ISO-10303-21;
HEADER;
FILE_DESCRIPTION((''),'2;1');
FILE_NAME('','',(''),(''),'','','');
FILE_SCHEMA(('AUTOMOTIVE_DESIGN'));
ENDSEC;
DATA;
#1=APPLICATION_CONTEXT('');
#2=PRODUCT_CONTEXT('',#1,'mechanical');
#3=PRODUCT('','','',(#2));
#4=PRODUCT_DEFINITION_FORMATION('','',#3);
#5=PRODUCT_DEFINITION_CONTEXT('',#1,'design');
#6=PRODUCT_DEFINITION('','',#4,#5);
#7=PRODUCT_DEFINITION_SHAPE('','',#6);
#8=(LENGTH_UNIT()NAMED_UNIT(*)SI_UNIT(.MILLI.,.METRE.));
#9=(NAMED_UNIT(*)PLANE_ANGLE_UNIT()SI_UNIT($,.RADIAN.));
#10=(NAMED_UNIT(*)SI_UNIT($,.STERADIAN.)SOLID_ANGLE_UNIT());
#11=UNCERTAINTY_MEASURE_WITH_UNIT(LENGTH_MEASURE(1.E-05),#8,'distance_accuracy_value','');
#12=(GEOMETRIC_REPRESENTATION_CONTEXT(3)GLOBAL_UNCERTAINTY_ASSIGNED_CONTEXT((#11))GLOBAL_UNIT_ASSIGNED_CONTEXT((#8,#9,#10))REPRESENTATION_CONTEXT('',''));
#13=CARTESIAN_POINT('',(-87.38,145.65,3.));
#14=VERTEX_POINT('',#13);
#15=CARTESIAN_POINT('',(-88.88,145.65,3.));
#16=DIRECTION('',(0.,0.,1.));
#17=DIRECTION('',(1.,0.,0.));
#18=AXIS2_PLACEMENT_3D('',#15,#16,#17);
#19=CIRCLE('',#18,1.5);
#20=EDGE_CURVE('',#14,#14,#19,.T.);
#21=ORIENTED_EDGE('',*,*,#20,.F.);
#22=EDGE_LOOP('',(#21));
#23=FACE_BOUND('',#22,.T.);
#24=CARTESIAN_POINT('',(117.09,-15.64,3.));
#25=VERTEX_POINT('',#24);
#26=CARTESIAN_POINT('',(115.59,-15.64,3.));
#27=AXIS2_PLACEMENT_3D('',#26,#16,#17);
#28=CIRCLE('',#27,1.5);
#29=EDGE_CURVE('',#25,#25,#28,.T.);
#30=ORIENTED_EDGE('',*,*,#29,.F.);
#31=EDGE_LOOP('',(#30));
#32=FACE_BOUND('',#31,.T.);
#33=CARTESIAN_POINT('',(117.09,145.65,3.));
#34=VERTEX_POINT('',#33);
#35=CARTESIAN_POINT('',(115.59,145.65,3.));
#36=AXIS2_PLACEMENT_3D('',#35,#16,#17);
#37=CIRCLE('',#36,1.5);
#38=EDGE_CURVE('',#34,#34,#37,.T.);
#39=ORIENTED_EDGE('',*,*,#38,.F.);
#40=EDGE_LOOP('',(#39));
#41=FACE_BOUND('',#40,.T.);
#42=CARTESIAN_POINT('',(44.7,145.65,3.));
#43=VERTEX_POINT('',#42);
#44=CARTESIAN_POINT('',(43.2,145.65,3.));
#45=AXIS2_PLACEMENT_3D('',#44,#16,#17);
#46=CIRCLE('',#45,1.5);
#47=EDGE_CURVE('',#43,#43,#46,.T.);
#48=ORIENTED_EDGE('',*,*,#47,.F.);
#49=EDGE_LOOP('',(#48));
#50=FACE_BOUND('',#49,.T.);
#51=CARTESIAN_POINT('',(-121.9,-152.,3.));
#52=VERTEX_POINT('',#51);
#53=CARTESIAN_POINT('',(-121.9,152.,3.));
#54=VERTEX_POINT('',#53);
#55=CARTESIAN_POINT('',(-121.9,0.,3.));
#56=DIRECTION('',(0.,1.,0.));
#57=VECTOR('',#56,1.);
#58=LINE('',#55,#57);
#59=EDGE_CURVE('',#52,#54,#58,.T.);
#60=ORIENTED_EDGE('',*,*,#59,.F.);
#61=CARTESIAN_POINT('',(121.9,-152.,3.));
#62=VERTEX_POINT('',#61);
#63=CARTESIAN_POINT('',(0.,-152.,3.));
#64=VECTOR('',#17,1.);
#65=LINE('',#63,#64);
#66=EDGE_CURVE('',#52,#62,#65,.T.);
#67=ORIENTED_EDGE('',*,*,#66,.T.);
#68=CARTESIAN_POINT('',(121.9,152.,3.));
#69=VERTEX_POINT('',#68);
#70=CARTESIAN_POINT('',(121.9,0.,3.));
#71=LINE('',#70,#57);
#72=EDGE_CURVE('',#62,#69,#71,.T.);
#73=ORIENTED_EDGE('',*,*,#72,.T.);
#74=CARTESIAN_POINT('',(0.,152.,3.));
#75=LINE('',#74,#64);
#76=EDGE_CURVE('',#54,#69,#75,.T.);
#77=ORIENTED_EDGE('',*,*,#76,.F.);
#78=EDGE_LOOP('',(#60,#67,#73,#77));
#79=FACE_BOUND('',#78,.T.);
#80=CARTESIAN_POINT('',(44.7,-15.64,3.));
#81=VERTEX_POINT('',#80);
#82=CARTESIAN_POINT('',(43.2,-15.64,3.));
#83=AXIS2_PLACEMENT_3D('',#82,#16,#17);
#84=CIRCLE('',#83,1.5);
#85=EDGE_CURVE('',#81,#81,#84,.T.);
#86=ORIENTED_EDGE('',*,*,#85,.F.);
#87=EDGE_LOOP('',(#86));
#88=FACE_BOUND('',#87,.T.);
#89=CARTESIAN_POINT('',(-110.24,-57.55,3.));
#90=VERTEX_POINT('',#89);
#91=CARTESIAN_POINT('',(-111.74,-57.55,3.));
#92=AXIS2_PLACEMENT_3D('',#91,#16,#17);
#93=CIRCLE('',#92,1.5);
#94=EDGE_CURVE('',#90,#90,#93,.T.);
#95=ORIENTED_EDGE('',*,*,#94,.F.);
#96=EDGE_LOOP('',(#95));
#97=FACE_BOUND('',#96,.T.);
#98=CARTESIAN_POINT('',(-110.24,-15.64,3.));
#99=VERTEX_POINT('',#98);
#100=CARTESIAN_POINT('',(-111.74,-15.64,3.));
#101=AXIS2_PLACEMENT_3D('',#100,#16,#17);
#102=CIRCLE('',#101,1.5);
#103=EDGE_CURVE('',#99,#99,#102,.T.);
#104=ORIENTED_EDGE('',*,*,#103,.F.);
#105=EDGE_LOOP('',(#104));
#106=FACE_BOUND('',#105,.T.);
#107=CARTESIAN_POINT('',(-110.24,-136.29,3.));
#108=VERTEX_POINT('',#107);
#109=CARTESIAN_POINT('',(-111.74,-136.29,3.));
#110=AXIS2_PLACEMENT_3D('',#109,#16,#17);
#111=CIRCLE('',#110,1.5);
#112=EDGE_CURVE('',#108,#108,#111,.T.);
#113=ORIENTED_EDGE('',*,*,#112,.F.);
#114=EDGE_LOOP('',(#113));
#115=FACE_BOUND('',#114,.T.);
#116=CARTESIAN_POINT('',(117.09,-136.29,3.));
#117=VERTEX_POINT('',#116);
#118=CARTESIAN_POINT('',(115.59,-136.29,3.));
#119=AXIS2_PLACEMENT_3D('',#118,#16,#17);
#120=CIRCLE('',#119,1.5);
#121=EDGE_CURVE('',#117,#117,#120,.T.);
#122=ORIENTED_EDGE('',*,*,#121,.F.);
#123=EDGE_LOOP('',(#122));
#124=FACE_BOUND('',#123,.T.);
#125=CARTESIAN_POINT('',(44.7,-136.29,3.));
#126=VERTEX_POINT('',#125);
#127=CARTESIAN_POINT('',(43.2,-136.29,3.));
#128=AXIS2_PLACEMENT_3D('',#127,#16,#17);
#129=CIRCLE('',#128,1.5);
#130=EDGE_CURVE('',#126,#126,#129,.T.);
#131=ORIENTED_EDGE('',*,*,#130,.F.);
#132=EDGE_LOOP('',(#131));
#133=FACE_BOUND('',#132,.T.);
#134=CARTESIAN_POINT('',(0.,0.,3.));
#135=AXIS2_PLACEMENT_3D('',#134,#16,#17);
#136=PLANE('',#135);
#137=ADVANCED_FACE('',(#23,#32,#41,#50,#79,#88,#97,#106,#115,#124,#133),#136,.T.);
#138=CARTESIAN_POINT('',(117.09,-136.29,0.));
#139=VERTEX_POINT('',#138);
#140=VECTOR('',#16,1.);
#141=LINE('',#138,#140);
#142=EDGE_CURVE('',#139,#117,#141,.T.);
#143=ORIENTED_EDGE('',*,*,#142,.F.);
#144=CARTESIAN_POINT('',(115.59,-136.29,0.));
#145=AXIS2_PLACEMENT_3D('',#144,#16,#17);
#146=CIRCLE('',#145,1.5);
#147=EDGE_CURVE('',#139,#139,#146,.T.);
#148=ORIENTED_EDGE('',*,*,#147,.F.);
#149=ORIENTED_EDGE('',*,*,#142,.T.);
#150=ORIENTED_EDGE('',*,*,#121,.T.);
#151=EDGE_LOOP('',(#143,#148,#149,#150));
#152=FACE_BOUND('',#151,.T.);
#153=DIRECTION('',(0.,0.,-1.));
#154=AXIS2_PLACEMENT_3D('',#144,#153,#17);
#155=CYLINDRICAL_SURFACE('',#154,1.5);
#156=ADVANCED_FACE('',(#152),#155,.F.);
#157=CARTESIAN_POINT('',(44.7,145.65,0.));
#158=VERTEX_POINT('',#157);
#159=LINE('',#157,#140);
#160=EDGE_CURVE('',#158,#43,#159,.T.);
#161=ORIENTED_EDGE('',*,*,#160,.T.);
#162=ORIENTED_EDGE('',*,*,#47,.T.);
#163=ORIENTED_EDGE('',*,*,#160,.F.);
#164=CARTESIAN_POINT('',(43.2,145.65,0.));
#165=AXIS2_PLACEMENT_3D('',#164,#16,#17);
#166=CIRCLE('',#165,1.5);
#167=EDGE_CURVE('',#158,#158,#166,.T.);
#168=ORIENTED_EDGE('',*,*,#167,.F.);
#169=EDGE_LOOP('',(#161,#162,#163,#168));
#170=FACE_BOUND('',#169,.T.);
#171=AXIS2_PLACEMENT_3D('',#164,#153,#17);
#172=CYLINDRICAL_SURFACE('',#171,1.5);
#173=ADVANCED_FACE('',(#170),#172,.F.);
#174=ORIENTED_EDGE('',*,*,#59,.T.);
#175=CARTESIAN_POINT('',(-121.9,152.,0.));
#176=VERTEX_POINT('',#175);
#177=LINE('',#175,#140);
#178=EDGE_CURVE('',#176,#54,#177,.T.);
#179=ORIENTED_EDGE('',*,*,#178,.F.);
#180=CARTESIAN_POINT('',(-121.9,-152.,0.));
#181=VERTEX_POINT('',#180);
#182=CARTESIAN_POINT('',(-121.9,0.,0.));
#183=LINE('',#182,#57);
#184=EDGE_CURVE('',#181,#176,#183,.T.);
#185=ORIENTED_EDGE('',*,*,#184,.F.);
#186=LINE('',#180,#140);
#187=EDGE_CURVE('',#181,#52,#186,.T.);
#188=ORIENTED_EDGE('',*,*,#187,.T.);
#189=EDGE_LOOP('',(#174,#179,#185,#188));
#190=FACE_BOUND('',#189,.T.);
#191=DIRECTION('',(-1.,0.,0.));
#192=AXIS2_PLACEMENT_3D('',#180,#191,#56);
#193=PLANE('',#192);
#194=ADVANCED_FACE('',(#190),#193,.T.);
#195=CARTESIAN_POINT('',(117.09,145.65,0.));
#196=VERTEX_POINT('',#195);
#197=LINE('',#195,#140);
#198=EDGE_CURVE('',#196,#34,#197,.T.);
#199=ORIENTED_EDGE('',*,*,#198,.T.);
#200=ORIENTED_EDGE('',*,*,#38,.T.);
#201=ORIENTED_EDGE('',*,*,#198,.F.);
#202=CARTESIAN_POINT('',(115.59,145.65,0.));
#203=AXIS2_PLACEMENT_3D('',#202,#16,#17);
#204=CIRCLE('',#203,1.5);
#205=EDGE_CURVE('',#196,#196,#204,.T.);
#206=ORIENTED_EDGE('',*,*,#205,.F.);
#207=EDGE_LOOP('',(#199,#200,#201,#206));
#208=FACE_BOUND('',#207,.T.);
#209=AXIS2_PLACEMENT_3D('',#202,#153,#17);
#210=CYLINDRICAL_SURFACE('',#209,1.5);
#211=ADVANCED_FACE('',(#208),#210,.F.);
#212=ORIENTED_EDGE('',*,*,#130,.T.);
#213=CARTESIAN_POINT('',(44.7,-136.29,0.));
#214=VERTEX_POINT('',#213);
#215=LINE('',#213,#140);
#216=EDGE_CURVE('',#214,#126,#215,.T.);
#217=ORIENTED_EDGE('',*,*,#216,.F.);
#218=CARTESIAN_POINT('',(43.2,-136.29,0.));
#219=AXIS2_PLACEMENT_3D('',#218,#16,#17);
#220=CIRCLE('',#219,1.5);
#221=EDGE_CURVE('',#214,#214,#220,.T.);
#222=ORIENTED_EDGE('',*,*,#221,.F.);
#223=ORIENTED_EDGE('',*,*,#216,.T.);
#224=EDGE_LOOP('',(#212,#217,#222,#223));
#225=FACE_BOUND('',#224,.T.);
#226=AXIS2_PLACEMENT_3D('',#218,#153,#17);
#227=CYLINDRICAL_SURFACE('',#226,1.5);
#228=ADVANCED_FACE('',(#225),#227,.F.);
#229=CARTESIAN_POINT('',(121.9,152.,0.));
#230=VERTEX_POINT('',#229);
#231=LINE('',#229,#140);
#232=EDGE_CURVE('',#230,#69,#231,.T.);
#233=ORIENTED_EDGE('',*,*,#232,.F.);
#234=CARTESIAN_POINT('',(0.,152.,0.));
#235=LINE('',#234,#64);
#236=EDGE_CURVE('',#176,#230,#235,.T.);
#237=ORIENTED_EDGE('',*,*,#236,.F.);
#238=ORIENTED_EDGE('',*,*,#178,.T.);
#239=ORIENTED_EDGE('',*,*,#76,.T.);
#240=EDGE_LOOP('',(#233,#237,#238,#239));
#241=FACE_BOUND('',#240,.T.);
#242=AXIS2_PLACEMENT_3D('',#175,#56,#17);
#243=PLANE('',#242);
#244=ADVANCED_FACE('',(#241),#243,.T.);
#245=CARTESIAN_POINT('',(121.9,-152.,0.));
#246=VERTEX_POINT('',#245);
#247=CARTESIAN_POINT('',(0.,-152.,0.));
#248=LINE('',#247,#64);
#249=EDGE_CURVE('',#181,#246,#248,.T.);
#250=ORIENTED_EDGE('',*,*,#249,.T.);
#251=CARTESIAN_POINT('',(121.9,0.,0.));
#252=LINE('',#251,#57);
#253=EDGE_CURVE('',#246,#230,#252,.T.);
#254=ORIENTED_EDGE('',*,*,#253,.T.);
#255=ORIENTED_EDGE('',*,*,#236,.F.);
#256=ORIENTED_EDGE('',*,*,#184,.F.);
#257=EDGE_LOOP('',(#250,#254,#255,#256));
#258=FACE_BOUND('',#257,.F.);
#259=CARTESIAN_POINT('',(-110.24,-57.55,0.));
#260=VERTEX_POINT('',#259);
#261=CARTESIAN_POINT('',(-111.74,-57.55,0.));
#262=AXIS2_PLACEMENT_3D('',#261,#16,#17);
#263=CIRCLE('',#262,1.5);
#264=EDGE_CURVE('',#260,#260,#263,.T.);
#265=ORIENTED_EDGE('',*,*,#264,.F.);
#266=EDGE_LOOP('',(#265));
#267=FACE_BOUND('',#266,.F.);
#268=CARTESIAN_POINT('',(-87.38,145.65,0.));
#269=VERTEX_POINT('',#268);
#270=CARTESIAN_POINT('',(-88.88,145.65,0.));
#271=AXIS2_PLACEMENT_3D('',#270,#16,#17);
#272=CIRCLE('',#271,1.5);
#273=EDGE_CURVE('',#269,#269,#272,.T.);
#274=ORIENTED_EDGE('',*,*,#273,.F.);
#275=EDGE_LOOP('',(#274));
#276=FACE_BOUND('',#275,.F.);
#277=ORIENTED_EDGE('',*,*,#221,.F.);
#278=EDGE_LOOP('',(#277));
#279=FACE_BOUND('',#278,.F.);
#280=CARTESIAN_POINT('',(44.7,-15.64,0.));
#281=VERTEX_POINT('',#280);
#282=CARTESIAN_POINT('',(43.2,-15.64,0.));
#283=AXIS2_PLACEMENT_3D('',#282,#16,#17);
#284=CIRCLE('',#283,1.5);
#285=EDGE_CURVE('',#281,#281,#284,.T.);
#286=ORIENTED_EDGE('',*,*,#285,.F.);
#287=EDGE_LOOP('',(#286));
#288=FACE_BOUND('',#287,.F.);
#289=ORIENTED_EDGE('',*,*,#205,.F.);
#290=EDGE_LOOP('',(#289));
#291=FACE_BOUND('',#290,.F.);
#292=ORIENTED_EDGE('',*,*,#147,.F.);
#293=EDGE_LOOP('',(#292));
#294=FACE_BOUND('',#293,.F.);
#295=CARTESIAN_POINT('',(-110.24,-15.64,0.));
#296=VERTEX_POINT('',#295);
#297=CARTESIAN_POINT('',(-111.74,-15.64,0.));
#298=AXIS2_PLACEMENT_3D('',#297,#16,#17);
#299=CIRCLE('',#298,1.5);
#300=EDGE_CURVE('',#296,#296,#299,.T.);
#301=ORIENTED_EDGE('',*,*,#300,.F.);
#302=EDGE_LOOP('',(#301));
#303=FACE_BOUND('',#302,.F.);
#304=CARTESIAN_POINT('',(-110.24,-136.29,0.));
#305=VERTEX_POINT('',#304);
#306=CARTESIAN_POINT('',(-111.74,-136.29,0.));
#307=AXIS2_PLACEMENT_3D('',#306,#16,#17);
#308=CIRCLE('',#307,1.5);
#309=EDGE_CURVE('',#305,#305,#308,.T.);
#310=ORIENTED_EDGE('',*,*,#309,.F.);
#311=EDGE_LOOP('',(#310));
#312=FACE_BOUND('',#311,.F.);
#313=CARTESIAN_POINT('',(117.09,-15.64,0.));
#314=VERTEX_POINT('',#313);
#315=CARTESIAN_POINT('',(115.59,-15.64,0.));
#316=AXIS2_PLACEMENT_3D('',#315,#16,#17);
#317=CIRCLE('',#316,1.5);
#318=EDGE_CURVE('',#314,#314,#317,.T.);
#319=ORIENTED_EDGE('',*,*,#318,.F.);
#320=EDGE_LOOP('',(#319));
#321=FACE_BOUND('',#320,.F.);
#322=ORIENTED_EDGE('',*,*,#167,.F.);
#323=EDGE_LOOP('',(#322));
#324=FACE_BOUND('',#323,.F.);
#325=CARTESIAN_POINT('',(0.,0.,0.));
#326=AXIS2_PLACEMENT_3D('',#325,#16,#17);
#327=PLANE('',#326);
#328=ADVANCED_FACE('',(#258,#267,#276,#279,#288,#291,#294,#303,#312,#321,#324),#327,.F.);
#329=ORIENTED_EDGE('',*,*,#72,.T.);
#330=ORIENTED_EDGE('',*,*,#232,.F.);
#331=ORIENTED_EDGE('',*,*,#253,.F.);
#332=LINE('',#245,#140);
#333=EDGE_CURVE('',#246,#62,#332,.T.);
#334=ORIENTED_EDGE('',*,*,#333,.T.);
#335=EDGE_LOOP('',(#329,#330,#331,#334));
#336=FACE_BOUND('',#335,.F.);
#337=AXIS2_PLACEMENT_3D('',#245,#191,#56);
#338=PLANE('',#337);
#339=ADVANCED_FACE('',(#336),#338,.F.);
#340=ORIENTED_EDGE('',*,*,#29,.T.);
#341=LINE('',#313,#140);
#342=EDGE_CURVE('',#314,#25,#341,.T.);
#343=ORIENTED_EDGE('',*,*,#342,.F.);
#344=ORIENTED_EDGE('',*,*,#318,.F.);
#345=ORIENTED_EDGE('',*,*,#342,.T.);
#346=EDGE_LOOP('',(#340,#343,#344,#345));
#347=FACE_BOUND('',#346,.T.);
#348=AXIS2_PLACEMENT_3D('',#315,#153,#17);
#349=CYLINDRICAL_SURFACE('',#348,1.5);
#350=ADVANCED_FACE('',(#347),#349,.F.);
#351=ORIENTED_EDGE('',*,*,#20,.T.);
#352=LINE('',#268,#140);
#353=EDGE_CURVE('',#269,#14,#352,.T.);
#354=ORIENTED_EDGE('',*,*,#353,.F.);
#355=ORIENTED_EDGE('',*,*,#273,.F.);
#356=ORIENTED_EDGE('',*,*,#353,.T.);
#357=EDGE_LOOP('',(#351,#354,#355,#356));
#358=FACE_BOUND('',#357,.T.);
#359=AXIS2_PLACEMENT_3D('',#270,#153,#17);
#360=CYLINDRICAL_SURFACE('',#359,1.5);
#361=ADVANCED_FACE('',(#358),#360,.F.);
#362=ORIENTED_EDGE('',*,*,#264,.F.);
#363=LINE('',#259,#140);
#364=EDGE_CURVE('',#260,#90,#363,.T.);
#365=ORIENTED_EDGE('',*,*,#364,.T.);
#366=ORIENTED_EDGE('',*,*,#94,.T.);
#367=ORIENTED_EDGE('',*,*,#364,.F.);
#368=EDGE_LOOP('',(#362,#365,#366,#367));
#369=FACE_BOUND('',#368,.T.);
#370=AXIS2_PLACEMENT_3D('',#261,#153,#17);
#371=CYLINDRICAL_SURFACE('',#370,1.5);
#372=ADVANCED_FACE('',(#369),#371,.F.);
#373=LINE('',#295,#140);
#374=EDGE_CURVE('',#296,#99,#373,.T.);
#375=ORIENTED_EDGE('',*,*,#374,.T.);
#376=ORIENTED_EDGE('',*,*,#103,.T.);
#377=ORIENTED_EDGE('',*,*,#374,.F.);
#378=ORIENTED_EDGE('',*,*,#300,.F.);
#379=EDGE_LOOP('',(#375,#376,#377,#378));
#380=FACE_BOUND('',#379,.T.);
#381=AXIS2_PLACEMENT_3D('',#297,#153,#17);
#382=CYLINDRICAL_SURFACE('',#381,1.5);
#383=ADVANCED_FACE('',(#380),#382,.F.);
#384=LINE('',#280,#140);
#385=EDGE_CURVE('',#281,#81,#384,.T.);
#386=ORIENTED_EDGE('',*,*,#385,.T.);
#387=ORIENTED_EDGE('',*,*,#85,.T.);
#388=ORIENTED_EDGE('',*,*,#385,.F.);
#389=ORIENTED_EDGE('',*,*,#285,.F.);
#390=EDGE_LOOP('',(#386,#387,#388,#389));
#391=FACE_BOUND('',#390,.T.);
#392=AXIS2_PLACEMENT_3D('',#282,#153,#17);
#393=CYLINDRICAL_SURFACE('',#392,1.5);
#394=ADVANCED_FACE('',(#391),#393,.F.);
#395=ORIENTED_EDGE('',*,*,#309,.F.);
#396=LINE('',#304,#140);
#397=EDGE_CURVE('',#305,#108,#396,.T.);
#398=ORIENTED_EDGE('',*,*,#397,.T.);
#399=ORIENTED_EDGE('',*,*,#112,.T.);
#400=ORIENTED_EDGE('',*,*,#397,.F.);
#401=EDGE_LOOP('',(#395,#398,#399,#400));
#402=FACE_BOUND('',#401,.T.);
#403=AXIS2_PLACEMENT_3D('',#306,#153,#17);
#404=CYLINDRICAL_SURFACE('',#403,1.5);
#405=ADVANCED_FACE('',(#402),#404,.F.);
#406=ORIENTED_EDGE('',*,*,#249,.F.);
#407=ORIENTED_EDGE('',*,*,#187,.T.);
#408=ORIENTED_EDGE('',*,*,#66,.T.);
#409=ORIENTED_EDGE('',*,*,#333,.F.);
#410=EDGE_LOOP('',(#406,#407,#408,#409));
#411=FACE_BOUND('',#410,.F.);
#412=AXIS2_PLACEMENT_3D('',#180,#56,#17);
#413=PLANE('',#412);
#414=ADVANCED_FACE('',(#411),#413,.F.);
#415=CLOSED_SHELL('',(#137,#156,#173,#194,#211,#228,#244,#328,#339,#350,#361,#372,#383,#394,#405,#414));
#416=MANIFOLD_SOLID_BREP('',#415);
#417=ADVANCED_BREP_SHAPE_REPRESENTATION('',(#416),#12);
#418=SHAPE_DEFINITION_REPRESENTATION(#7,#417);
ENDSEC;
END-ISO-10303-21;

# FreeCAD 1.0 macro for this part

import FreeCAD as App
import Part
import Sketcher
from FreeCAD import Vector


def add_polygon(sketch, points):
    """Adds a closed chain of lines whose ends are joined by coincident constraints."""
    first, n = sketch.GeometryCount, len(points)
    for a, b in zip(points, points[1:] + points[:1]):
        sketch.addGeometry(Part.LineSegment(App.Vector(*a, 0), App.Vector(*b, 0)), False)
    for i in range(n):
        sketch.addConstraint(Sketcher.Constraint("Coincident", first + i, 2, first + (i + 1) % n, 1))

doc = App.newDocument("Part")
params = doc.addObject("Spreadsheet::Sheet", "Params")
for row, (alias, value) in enumerate([
    ("sketch1_diameter", "3 mm"),
    ("sketch1_height", "304 mm"),
    ("sketch1_width", "243.8 mm"),
    ("pad1_length", "3 mm"),
], start=1):
    params.set(f"A{row}", alias)
    params.set(f"B{row}", "=" + value)
    params.setAlias(f"B{row}", alias)

body = doc.addObject("PartDesign::Body", "Body")

# Sketch on XY plane
sketch1 = body.newObject("Sketcher::SketchObject", "Sketch")
sketch1.AttachmentSupport = (doc.getObject("XY_Plane"), [""])
sketch1.MapMode = "FlatFace"
add_polygon(sketch1, [(-121.9, 152), (-121.9, -152), (121.9, -152), (121.9, 152)])  # lines 0-3
sketch1.addGeometry(Part.Circle(Vector(-111.7, -136.3, 0), Vector(0, 0, 1), 1.5), False)  # 4
sketch1.addGeometry(Part.Circle(Vector(-111.7, -57.5, 0), Vector(0, 0, 1), 1.5), False)  # 5
sketch1.addGeometry(Part.Circle(Vector(-111.7, -15.6, 0), Vector(0, 0, 1), 1.5), False)  # 6
sketch1.addGeometry(Part.Circle(Vector(43.2, -136.3, 0), Vector(0, 0, 1), 1.5), False)  # 7
sketch1.addGeometry(Part.Circle(Vector(115.6, -136.3, 0), Vector(0, 0, 1), 1.5), False)  # 8
sketch1.addGeometry(Part.Circle(Vector(43.2, -15.6, 0), Vector(0, 0, 1), 1.5), False)  # 9
sketch1.addGeometry(Part.Circle(Vector(115.6, -15.6, 0), Vector(0, 0, 1), 1.5), False)  # 10
sketch1.addGeometry(Part.Circle(Vector(-88.9, 145.7, 0), Vector(0, 0, 1), 1.5), False)  # 11
sketch1.addGeometry(Part.Circle(Vector(43.2, 145.7, 0), Vector(0, 0, 1), 1.5), False)  # 12
sketch1.addGeometry(Part.Circle(Vector(115.6, 145.7, 0), Vector(0, 0, 1), 1.5), False)  # 13
sketch1.addConstraint([
    Sketcher.Constraint("Vertical", 0),
    Sketcher.Constraint("Horizontal", 1),
    Sketcher.Constraint("Vertical", 2),
    Sketcher.Constraint("Horizontal", 3),
    Sketcher.Constraint("Equal", 4, 5),
    Sketcher.Constraint("Equal", 5, 6),
    Sketcher.Constraint("Equal", 6, 7),
    Sketcher.Constraint("Equal", 7, 8),
    Sketcher.Constraint("Equal", 8, 9),
    Sketcher.Constraint("Equal", 9, 10),
    Sketcher.Constraint("Equal", 10, 11),
    Sketcher.Constraint("Equal", 11, 12),
    Sketcher.Constraint("Equal", 12, 13),
    Sketcher.Constraint("Symmetric", 0, 2, 2, 2, -1, 1),
    Sketcher.Constraint("Horizontal", 4, 3, 7, 3),
    Sketcher.Constraint("Horizontal", 7, 3, 8, 3),
    Sketcher.Constraint("Horizontal", 6, 3, 9, 3),
    Sketcher.Constraint("Horizontal", 9, 3, 10, 3),
    Sketcher.Constraint("Horizontal", 11, 3, 12, 3),
    Sketcher.Constraint("Horizontal", 12, 3, 13, 3),
    Sketcher.Constraint("Vertical", 4, 3, 5, 3),
    Sketcher.Constraint("Vertical", 5, 3, 6, 3),
    Sketcher.Constraint("Vertical", 7, 3, 9, 3),
    Sketcher.Constraint("Vertical", 8, 3, 10, 3),
    Sketcher.Constraint("Vertical", 9, 3, 12, 3),
    Sketcher.Constraint("Vertical", 10, 3, 13, 3),
    Sketcher.Constraint("Diameter", 4, 3.0),
    Sketcher.Constraint("DistanceY", 0, 2, 0, 1, 304.0),
    Sketcher.Constraint("DistanceX", 1, 1, 1, 2, 243.8),
    Sketcher.Constraint("DistanceX", -1, 1, 7, 3, 43.2),
    Sketcher.Constraint("DistanceY", 5, 3, 11, 3, 203.2),
    Sketcher.Constraint("DistanceX", 4, 3, -1, 1, 111.74),
    Sketcher.Constraint("DistanceY", 4, 3, -1, 1, 136.29),
    Sketcher.Constraint("DistanceY", 5, 3, -1, 1, 57.55),
    Sketcher.Constraint("DistanceY", 6, 3, -1, 1, 15.64),
    Sketcher.Constraint("DistanceX", -1, 1, 8, 3, 115.59),
    Sketcher.Constraint("DistanceX", 11, 3, -1, 1, 88.88),
])
sketch1.setExpression("Constraints[30]", "Params.sketch1_diameter")
sketch1.setExpression("Constraints[31]", "Params.sketch1_height")
sketch1.setExpression("Constraints[32]", "Params.sketch1_width")
pad1 = body.newObject("PartDesign::Pad", "Pad")
pad1.Profile = sketch1
pad1.setExpression("Length", "Params.pad1_length")

doc.recompute()
